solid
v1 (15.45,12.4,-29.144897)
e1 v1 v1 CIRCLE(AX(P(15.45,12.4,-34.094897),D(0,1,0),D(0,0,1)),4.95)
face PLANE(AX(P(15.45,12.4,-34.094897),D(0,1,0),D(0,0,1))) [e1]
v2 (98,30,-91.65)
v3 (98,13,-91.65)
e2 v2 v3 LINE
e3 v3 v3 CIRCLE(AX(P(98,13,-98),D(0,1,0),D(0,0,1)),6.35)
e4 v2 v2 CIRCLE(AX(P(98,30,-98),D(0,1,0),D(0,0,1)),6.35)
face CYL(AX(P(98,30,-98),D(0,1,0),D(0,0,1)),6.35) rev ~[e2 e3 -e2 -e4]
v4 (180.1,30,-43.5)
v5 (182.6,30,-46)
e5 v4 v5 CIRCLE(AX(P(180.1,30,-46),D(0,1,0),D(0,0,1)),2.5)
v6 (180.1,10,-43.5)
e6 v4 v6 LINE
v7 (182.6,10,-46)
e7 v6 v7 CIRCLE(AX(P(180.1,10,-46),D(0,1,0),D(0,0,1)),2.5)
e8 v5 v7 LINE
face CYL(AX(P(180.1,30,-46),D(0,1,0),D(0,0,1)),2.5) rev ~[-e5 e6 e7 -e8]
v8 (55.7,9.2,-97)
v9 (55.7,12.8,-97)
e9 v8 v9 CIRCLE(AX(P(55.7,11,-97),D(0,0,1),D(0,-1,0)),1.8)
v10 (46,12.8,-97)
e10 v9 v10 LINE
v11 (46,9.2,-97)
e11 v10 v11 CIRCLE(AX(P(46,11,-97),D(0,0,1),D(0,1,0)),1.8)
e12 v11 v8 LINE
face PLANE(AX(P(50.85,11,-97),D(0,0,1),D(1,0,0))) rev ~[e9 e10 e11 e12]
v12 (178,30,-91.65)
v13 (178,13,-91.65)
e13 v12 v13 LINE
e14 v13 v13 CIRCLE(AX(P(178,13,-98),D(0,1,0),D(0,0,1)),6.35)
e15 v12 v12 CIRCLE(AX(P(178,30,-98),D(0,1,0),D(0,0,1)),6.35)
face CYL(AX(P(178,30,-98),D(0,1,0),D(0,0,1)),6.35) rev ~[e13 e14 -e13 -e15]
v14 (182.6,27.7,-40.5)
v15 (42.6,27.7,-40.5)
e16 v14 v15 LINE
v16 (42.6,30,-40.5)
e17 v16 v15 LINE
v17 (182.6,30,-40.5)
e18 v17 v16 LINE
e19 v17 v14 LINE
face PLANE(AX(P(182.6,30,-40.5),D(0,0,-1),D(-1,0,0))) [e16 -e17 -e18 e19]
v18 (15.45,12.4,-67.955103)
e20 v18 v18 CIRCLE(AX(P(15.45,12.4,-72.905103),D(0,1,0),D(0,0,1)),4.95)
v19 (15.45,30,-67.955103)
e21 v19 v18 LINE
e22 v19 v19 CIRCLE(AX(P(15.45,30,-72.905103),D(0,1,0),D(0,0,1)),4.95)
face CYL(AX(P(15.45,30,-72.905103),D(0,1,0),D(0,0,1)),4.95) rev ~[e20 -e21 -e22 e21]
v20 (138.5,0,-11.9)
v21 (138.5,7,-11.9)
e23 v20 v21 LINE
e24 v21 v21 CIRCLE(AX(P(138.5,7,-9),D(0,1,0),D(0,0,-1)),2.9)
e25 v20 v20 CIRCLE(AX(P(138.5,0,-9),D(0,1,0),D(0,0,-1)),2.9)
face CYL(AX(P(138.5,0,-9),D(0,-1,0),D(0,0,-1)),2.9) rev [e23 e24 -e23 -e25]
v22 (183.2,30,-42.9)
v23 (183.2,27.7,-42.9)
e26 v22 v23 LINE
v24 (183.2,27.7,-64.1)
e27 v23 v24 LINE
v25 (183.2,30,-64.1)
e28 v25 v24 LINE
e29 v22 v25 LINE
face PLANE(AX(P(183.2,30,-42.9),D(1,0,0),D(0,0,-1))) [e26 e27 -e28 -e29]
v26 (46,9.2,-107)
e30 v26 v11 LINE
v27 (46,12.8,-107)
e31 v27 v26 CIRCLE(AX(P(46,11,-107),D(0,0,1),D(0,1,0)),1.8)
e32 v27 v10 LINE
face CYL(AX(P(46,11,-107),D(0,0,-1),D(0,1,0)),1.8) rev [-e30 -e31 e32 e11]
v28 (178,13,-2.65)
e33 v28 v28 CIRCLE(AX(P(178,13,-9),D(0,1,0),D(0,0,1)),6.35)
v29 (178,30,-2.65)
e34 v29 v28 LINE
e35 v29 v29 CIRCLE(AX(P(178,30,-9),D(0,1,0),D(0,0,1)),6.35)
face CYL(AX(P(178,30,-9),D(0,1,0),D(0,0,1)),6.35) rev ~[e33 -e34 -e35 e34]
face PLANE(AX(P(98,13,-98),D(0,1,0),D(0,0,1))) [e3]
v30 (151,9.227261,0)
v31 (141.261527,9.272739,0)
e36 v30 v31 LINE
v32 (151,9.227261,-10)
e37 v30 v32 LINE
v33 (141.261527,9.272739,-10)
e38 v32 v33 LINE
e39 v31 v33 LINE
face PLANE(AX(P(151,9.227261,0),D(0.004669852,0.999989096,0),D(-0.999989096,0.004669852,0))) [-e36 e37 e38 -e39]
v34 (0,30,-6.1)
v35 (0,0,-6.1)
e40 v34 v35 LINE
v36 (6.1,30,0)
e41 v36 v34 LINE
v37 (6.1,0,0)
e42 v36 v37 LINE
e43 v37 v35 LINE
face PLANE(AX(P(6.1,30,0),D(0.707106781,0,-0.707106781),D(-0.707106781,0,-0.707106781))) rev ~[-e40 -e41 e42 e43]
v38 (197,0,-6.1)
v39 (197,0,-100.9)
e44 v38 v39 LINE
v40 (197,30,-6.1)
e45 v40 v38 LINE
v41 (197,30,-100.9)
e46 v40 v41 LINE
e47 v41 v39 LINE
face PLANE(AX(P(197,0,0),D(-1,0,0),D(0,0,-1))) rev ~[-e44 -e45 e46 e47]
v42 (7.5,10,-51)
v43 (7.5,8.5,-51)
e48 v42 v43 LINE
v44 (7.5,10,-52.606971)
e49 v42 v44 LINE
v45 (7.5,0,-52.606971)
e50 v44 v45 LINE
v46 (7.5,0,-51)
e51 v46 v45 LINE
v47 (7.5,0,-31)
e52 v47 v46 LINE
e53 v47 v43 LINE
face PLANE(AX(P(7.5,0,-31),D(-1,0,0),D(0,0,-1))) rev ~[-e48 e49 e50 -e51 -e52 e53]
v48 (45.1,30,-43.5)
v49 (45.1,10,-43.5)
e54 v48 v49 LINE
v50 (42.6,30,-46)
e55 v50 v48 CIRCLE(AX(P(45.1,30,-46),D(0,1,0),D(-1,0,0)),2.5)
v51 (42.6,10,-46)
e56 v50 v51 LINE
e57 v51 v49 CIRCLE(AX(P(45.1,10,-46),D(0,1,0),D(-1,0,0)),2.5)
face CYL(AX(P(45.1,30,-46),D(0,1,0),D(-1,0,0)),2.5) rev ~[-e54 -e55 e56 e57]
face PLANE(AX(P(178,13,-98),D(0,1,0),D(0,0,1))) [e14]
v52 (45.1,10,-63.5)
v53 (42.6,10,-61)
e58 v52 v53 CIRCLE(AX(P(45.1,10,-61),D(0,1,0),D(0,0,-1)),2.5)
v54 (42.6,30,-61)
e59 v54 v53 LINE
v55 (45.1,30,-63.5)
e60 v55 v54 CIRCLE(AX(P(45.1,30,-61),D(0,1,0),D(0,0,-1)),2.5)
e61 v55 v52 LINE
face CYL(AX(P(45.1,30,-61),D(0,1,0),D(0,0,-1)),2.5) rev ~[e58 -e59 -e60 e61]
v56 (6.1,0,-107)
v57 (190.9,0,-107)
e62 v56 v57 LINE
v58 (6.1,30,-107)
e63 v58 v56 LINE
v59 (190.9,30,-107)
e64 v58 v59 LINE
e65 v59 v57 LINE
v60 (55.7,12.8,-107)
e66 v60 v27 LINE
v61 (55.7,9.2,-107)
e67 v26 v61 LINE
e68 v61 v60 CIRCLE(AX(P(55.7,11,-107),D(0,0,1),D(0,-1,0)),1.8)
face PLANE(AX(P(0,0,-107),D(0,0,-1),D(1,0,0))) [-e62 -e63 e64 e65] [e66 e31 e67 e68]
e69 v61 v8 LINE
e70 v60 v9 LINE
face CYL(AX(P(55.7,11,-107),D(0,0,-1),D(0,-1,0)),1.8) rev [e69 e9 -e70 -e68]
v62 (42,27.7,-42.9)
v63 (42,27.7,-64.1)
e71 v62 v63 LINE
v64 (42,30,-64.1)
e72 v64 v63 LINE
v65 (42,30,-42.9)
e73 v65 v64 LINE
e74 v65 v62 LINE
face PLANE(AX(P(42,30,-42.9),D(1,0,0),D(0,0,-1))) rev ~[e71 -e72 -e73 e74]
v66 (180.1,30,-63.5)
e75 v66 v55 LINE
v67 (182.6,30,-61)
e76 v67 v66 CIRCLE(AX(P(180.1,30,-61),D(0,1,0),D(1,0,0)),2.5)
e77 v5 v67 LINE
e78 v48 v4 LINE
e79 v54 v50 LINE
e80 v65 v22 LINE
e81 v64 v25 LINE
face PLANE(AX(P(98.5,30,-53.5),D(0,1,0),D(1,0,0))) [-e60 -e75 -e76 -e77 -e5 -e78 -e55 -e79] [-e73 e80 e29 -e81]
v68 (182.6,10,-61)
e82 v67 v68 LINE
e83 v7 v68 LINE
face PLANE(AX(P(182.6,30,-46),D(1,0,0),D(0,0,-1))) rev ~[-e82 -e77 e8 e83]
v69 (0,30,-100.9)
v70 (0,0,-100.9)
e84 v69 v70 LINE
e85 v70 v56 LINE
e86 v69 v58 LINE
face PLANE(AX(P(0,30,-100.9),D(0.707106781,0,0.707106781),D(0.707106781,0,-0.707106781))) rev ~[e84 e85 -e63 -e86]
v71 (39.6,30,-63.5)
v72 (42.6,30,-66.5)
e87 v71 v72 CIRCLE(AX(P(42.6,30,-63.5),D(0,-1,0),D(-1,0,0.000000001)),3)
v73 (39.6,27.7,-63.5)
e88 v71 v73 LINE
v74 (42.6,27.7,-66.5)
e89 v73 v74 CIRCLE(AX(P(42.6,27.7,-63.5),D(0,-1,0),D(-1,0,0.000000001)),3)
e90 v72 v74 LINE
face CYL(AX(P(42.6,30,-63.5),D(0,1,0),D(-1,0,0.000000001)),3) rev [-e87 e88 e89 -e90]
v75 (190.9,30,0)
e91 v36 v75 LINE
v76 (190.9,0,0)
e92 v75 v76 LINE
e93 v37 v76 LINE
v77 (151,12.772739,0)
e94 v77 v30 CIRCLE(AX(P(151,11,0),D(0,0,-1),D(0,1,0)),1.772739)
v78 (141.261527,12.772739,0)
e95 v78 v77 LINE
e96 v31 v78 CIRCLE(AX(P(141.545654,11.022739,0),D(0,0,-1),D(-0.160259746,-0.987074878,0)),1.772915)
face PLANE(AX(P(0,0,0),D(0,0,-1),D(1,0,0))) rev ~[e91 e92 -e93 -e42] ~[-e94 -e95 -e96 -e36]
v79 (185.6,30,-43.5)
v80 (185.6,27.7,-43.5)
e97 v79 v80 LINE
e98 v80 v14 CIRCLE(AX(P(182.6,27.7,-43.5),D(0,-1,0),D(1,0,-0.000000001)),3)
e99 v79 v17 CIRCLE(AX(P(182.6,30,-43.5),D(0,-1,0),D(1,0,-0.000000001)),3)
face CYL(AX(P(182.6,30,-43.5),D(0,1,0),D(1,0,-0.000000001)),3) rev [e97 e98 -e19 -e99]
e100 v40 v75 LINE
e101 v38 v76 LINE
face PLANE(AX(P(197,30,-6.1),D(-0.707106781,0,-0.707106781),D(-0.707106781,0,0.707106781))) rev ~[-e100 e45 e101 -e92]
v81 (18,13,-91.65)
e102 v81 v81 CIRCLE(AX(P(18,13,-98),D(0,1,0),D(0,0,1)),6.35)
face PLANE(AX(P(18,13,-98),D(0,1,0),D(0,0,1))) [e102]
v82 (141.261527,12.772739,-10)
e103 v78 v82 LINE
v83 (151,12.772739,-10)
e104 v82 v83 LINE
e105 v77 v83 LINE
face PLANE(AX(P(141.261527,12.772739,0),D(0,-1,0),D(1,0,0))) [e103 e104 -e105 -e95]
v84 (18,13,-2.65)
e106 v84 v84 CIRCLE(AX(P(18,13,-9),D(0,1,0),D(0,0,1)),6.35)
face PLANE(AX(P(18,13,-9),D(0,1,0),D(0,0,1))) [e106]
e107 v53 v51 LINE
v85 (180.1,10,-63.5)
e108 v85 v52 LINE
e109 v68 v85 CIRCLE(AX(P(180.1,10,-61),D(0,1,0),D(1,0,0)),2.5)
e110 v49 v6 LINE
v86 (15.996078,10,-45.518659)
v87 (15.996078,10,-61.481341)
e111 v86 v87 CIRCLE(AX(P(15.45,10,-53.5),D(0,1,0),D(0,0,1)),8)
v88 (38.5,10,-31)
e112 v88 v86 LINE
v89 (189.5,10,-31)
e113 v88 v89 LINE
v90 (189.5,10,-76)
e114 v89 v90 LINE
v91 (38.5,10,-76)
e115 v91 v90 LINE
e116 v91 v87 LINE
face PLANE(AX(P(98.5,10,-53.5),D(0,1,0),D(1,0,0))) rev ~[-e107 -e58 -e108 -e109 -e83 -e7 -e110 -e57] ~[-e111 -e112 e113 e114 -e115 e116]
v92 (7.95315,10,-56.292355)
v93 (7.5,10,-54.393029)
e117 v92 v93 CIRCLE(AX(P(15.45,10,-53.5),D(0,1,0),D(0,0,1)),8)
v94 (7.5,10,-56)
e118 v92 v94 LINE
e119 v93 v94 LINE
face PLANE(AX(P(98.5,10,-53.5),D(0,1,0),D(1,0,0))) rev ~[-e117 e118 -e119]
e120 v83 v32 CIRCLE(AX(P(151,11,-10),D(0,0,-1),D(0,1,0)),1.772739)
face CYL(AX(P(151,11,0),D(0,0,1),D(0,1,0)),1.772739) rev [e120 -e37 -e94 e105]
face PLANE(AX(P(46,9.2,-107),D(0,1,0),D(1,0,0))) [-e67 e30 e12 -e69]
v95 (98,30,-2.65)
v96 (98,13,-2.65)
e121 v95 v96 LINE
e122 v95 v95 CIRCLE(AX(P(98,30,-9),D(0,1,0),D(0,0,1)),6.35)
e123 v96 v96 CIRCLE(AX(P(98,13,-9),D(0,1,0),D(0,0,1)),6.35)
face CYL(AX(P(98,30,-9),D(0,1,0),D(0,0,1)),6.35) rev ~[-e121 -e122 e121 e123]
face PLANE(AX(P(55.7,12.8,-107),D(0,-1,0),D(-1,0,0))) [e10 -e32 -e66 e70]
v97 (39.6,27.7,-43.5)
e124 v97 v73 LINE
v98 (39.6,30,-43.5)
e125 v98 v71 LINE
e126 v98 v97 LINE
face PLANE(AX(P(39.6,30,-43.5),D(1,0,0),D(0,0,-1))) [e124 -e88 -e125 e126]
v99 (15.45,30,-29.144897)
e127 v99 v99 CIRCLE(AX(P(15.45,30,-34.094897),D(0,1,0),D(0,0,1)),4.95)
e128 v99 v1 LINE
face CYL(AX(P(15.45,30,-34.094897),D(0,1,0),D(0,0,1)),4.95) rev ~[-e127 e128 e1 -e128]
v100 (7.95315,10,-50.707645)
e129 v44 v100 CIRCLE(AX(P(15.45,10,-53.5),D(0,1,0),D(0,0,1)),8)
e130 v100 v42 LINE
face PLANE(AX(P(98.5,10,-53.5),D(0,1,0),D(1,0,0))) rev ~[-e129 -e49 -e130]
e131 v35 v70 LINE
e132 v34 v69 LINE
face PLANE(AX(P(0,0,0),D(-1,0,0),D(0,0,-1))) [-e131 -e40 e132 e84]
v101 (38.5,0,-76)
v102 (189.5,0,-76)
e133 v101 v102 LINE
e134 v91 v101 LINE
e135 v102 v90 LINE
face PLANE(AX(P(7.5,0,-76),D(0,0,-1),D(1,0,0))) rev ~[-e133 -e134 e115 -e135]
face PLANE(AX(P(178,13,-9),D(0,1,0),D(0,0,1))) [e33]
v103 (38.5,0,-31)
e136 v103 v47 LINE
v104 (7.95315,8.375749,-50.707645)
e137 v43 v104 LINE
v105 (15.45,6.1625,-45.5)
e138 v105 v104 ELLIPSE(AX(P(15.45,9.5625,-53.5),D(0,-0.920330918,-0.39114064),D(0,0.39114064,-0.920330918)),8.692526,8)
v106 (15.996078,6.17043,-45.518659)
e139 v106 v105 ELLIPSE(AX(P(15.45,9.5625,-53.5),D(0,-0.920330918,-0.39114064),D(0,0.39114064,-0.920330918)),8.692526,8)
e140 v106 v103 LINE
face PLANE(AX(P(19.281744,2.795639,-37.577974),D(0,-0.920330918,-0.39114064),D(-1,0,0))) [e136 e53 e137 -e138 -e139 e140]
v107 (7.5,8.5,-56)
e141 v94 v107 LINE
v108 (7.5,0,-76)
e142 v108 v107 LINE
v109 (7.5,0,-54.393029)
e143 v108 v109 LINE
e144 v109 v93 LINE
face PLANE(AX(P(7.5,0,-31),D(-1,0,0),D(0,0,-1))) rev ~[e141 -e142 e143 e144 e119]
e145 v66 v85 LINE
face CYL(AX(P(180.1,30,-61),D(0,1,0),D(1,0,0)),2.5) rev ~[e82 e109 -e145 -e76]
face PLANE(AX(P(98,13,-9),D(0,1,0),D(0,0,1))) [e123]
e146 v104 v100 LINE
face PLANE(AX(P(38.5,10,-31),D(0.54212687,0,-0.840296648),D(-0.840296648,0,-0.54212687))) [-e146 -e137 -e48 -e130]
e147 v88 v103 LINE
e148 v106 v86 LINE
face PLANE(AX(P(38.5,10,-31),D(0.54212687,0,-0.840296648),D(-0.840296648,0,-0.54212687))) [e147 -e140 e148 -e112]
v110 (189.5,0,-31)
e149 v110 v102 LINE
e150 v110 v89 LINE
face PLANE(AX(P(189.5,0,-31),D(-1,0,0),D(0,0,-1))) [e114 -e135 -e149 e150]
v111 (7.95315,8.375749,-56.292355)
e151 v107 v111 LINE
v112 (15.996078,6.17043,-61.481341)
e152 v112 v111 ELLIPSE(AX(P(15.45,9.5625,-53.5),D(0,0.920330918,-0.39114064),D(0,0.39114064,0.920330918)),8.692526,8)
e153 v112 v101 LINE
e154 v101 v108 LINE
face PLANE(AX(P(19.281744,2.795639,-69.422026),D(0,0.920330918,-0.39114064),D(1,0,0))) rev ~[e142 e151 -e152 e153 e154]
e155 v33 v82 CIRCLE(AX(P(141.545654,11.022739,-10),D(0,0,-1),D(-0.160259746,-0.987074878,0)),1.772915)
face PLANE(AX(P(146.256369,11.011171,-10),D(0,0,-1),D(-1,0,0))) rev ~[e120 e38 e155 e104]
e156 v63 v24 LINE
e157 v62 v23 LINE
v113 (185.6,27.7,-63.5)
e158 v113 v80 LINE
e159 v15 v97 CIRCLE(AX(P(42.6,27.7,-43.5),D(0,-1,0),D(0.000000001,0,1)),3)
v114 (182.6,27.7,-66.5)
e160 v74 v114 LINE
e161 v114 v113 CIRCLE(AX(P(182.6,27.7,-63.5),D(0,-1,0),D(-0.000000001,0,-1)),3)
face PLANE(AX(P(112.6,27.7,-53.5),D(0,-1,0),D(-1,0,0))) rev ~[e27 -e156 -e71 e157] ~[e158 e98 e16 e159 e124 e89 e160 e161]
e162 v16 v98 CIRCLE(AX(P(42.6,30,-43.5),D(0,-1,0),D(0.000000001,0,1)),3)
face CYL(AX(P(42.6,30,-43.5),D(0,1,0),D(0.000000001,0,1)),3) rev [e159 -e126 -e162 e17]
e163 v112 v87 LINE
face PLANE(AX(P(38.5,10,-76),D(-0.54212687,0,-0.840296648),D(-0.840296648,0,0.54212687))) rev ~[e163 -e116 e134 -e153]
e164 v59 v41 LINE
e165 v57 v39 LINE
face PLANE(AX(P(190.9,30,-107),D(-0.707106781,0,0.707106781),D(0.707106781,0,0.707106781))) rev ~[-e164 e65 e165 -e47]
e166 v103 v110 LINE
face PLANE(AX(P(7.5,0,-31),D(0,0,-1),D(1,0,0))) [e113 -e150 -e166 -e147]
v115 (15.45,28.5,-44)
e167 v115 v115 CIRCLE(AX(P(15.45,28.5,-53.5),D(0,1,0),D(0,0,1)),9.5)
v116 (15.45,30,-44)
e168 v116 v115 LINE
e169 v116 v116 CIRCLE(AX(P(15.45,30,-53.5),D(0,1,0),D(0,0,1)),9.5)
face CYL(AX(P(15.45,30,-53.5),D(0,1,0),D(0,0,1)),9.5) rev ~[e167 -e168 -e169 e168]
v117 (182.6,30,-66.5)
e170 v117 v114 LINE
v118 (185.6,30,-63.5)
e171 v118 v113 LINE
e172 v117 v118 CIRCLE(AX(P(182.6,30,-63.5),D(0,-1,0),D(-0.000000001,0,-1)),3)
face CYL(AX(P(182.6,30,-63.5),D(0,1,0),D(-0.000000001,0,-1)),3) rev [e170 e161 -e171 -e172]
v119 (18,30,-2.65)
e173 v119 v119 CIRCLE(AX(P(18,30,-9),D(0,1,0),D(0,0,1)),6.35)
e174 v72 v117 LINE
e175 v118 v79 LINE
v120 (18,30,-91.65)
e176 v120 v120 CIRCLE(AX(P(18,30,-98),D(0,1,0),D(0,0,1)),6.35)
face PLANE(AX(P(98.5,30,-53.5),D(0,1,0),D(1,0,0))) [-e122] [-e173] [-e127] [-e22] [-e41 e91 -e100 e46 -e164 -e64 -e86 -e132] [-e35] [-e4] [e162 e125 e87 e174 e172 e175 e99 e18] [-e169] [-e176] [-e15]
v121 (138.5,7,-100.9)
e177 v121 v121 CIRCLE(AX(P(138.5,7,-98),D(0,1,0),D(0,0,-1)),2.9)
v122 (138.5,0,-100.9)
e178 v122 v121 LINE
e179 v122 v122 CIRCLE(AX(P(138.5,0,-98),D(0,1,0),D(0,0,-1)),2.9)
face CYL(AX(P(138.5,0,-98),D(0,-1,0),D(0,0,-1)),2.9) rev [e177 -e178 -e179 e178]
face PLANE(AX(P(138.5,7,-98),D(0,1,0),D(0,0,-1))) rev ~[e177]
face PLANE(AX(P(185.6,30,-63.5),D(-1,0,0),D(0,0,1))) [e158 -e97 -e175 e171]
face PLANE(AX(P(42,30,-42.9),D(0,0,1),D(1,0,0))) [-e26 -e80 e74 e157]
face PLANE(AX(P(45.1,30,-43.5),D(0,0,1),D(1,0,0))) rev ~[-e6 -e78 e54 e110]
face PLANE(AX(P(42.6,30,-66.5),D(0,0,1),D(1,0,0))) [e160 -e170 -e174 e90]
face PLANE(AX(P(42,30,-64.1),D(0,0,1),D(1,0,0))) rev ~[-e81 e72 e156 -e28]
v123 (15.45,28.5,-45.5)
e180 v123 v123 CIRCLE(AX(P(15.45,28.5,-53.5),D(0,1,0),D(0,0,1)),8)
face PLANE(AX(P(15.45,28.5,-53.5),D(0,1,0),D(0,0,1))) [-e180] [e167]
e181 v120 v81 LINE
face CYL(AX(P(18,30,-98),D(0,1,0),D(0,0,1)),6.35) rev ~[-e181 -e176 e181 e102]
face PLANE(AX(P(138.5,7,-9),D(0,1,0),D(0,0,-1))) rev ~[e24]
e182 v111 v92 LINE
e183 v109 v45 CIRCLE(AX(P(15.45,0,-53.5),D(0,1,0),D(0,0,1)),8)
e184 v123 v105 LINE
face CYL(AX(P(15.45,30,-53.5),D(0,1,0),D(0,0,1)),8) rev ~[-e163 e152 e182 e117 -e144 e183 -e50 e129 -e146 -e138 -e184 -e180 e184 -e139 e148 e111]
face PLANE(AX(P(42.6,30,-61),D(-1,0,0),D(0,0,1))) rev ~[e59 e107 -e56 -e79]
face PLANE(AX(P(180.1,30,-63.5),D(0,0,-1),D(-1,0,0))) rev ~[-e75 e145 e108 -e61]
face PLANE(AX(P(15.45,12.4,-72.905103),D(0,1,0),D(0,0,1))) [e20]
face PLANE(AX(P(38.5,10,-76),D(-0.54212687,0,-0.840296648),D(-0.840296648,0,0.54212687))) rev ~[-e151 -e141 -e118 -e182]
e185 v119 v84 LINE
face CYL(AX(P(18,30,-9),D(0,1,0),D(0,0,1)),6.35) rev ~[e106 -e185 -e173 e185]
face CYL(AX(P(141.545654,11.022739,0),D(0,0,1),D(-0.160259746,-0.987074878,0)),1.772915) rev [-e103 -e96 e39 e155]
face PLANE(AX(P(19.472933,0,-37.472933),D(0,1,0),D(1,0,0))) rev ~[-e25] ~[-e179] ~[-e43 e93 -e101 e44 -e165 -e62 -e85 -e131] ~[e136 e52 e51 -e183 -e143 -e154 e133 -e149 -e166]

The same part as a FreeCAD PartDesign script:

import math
import FreeCAD as App
import Part
import Sketcher

V = App.Vector

doc = App.newDocument("Part")
body = doc.addObject("PartDesign::Body", "Body")

# Sketch on XZ plane
sketch1 = body.newObject("Sketcher::SketchObject", "Sketch")
sketch1.AttachmentSupport = (doc.getObject("XZ_Plane"), [""])
sketch1.MapMode = "FlatFace"
sketch1.addGeometry([
    Part.LineSegment(V(0, -107, 0), V(0, 0, 0)),
    Part.LineSegment(V(0, 0, 0), V(197, 0, 0)),
    Part.LineSegment(V(197, 0, 0), V(197, -107, 0)),
    Part.LineSegment(V(197, -107, 0), V(0, -107, 0)),
], False)
sketch1.addConstraint([
    Sketcher.Constraint("Coincident", 0, 2, 1, 1),
    Sketcher.Constraint("Coincident", 1, 2, 2, 1),
    Sketcher.Constraint("Coincident", 2, 2, 3, 1),
    Sketcher.Constraint("Coincident", 3, 2, 0, 1),
    Sketcher.Constraint("Vertical", 0),
    Sketcher.Constraint("Horizontal", 1),
    Sketcher.Constraint("Vertical", 2),
    Sketcher.Constraint("Horizontal", 3),
    Sketcher.Constraint("Coincident", 0, 2, -1, 1),
    Sketcher.Constraint("DistanceX", 1, 1, 1, 2, 197.0),
    Sketcher.Constraint("DistanceY", 0, 1, 0, 2, 107.0),
])
pad1 = body.newObject("PartDesign::Pad", "Pad")
pad1.Profile = sketch1
pad1.Length = 30
pad1.Reversed = True

# Sketch on XZ plane
sketch2 = body.newObject("Sketcher::SketchObject", "Sketch001")
sketch2.AttachmentSupport = (doc.getObject("XZ_Plane"), [""])
sketch2.MapMode = "FlatFace"
sketch2.addGeometry([
    Part.LineSegment(V(8, -76, 0), V(8, -31, 0)),
    Part.LineSegment(V(8, -31, 0), V(190, -31, 0)),
    Part.LineSegment(V(190, -31, 0), V(190, -76, 0)),
    Part.LineSegment(V(190, -76, 0), V(8, -76, 0)),
], False)
sketch2.addConstraint([
    Sketcher.Constraint("Coincident", 0, 2, 1, 1),
    Sketcher.Constraint("Coincident", 1, 2, 2, 1),
    Sketcher.Constraint("Coincident", 2, 2, 3, 1),
    Sketcher.Constraint("Coincident", 3, 2, 0, 1),
    Sketcher.Constraint("Vertical", 0),
    Sketcher.Constraint("Horizontal", 1),
    Sketcher.Constraint("Vertical", 2),
    Sketcher.Constraint("Horizontal", 3),
    Sketcher.Constraint("DistanceX", 1, 1, 1, 2, 182.0),
    Sketcher.Constraint("DistanceY", 0, 1, 0, 2, 45.0),
    Sketcher.Constraint("DistanceY", 0, 2, -1, 1, 31.0),
    Sketcher.Constraint("DistanceX", -1, 1, 0, 2, 7.5),
])
pocket1 = body.newObject("PartDesign::Pocket", "Pocket")
pocket1.Profile = sketch2
pocket1.Length = 10

# Sketch on XZ plane
sketch3 = body.newObject("Sketcher::SketchObject", "Sketch002")
sketch3.AttachmentSupport = (doc.getObject("XZ_Plane"), [""])
sketch3.MapMode = "FlatFace"
sketch3.AttachmentOffset = App.Placement(V(0, 0, -10), App.Rotation())
sketch3.addGeometry([
    Part.LineSegment(V(8, -31, 0), V(8, -51, 0)),  # 0
    Part.LineSegment(V(8, -51, 0), V(38, -31, 0)),  # 1
    Part.LineSegment(V(38, -31, 0), V(8, -31, 0)),  # 2
    Part.LineSegment(V(8, -56, 0), V(8, -76, 0)),  # 3
    Part.LineSegment(V(8, -76, 0), V(38, -76, 0)),  # 4
    Part.LineSegment(V(38, -76, 0), V(8, -56, 0)),  # 5
], False)
sketch3.addConstraint([
    Sketcher.Constraint("Coincident", 0, 2, 1, 1),
    Sketcher.Constraint("Coincident", 1, 2, 2, 1),
    Sketcher.Constraint("Coincident", 2, 2, 0, 1),
    Sketcher.Constraint("Coincident", 3, 2, 4, 1),
    Sketcher.Constraint("Coincident", 4, 2, 5, 1),
    Sketcher.Constraint("Coincident", 5, 2, 3, 1),
    Sketcher.Constraint("Vertical", 0),
    Sketcher.Constraint("Horizontal", 2),
    Sketcher.Constraint("Vertical", 3),
    Sketcher.Constraint("Horizontal", 4),
    Sketcher.Constraint("Vertical", 2, 2, 3, 2),
    Sketcher.Constraint("Vertical", 1, 2, 4, 2),
    Sketcher.Constraint("Equal", 0, 3),
    Sketcher.Constraint("DistanceX", 2, 2, 2, 1, 31.0),
    Sketcher.Constraint("DistanceY", 0, 2, 0, 1, 20.0),
    Sketcher.Constraint("DistanceY", 0, 2, -1, 1, 51.0),
    Sketcher.Constraint("DistanceY", 3, 2, -1, 1, 76.0),
    Sketcher.Constraint("DistanceX", -1, 1, 0, 2, 7.5),
])
pad2 = body.newObject("PartDesign::Pad", "Pad001")
pad2.Profile = sketch3
pad2.Length = 10

# Sketch on an angled plane
sketch4 = body.newObject("Sketcher::SketchObject", "Sketch003")
sketch4.Placement = App.Placement(V(0, 27.358391, -11.627316), App.Rotation(V(1, 0, 0), V(0, -0.39114064, -0.920330918), V(0, 0.920330918, -0.39114064), "ZXY"))
sketch4.addGeometry([
    Part.LineSegment(V(8, 48, 0), V(38, 70, 0)),
    Part.LineSegment(V(38, 70, 0), V(8, 70, 0)),
    Part.LineSegment(V(8, 70, 0), V(8, 48, 0)),
], False)
sketch4.addConstraint([
    Sketcher.Constraint("Coincident", 0, 2, 1, 1),
    Sketcher.Constraint("Coincident", 1, 2, 2, 1),
    Sketcher.Constraint("Coincident", 2, 2, 0, 1),
    Sketcher.Constraint("Horizontal", 1),
    Sketcher.Constraint("Vertical", 2),
    Sketcher.Constraint("DistanceX", 1, 2, 1, 1, 31.0),
    Sketcher.Constraint("DistanceX", -1, 1, 0, 2, 38.5),
    Sketcher.Constraint("Distance", 0, 37.858288),
    Sketcher.Constraint("DistanceY", -1, 1, 0, 2, 69.94515),
])
pocket2 = body.newObject("PartDesign::Pocket", "Pocket001")
pocket2.Profile = sketch4
pocket2.Length = 14.5

# Sketch on XZ plane
sketch5 = body.newObject("Sketcher::SketchObject", "Sketch004")
sketch5.AttachmentSupport = (doc.getObject("XZ_Plane"), [""])
sketch5.MapMode = "FlatFace"
sketch5.AttachmentOffset = App.Placement(V(0, 0, -30), App.Rotation())
sketch5.addGeometry(Part.Circle(V(15, -54, 0), V(0, 0, 1), 8), False)
sketch5.addConstraint([
    Sketcher.Constraint("Diameter", 0, 16.0),
    Sketcher.Constraint("DistanceY", 0, 3, -1, 1, 53.5),
    Sketcher.Constraint("DistanceX", -1, 1, 0, 3, 15.45),
])
pocket3 = body.newObject("PartDesign::Pocket", "Pocket002")
pocket3.Profile = sketch5
pocket3.Length = 171
pocket3.Reversed = True

# Sketch on XZ plane
sketch6 = body.newObject("Sketcher::SketchObject", "Sketch005")
sketch6.AttachmentSupport = (doc.getObject("XZ_Plane"), [""])
sketch6.MapMode = "FlatFace"
sketch6.AttachmentOffset = App.Placement(V(0, 0, -30), App.Rotation())
sketch6.addGeometry(Part.Circle(V(15, -54, 0), V(0, 0, 1), 10), False)
sketch6.addConstraint([
    Sketcher.Constraint("Diameter", 0, 19.0),
    Sketcher.Constraint("DistanceY", 0, 3, -1, 1, 53.5),
    Sketcher.Constraint("DistanceX", -1, 1, 0, 3, 15.45),
])
pocket4 = body.newObject("PartDesign::Pocket", "Pocket003")
pocket4.Profile = sketch6
pocket4.Length = 1.5
pocket4.Reversed = True

# Sketch on XZ plane
sketch7 = body.newObject("Sketcher::SketchObject", "Sketch006")
sketch7.AttachmentSupport = (doc.getObject("XZ_Plane"), [""])
sketch7.MapMode = "FlatFace"
sketch7.AttachmentOffset = App.Placement(V(0, 0, -30), App.Rotation())
sketch7.addGeometry([
    Part.Circle(V(15.4, -72.9, 0), V(0, 0, 1), 5),
    Part.Circle(V(15.4, -34.1, 0), V(0, 0, 1), 5),
], False)
sketch7.addConstraint([
    Sketcher.Constraint("Equal", 0, 1),
    Sketcher.Constraint("Vertical", 0, 3, 1, 3),
    Sketcher.Constraint("Diameter", 0, 9.9),
    Sketcher.Constraint("DistanceX", -1, 1, 0, 3, 15.45),
    Sketcher.Constraint("DistanceY", 0, 3, -1, 1, 72.905103),
    Sketcher.Constraint("DistanceY", 1, 3, -1, 1, 34.094897),
])
pocket5 = body.newObject("PartDesign::Pocket", "Pocket004")
pocket5.Profile = sketch7
pocket5.Length = 17.6
pocket5.Reversed = True

# Sketch on XZ plane
sketch8 = body.newObject("Sketcher::SketchObject", "Sketch007")
sketch8.AttachmentSupport = (doc.getObject("XZ_Plane"), [""])
sketch8.MapMode = "FlatFace"
sketch8.addGeometry([
    Part.Circle(V(138.5, -9, 0), V(0, 0, 1), 2.9),
    Part.Circle(V(138.5, -98, 0), V(0, 0, 1), 2.9),
], False)
sketch8.addConstraint([
    Sketcher.Constraint("Equal", 0, 1),
    Sketcher.Constraint("Vertical", 0, 3, 1, 3),
    Sketcher.Constraint("Diameter", 0, 5.8),
    Sketcher.Constraint("DistanceY", 0, 3, -1, 1, 9.0),
    Sketcher.Constraint("DistanceY", 1, 3, -1, 1, 98.0),
    Sketcher.Constraint("DistanceX", -1, 1, 0, 3, 138.5),
])
pocket6 = body.newObject("PartDesign::Pocket", "Pocket005")
pocket6.Profile = sketch8
pocket6.Length = 7

# Sketch on XY plane
sketch9 = body.newObject("Sketcher::SketchObject", "Sketch008")
sketch9.AttachmentSupport = (doc.getObject("XY_Plane"), [""])
sketch9.MapMode = "FlatFace"
sketch9.addGeometry([
    Part.LineSegment(V(151, 12.8, 0), V(141.3, 12.8, 0)),
    Part.ArcOfCircle(Part.Circle(V(141.5, 11, 0), V(0, 0, 1), 1.8), math.radians(99), math.radians(261)),
    Part.LineSegment(V(141.3, 9.3, 0), V(151, 9.2, 0)),
    Part.ArcOfCircle(Part.Circle(V(151, 11, 0), V(0, 0, 1), 1.8), math.radians(-90), math.radians(90)),
], False)
sketch9.addConstraint([
    Sketcher.Constraint("Coincident", 0, 2, 1, 1),
    Sketcher.Constraint("Coincident", 1, 2, 2, 1),
    Sketcher.Constraint("Coincident", 2, 2, 3, 1),
    Sketcher.Constraint("Tangent", 3, 2, 0, 1),
    Sketcher.Constraint("Horizontal", 0),
    Sketcher.Constraint("Vertical", 0, 2, 1, 2),
    Sketcher.Constraint("Vertical", 3, 3, 2, 2),
    Sketcher.Constraint("DistanceX", -1, 1, 3, 3, 151.0),
    Sketcher.Constraint("DistanceY", -1, 1, 3, 3, 11.0),
    Sketcher.Constraint("DistanceY", 1, 2, 0, 2, 3.5),
    Sketcher.Constraint("Radius", 3, 1.772739),
    Sketcher.Constraint("Radius", 1, 1.772915),
    Sketcher.Constraint("Distance", 2, 9.738579),
])
pocket7 = body.newObject("PartDesign::Pocket", "Pocket006")
pocket7.Profile = sketch9
pocket7.Length = 10

# Sketch on XY plane
sketch10 = body.newObject("Sketcher::SketchObject", "Sketch009")
sketch10.AttachmentSupport = (doc.getObject("XY_Plane"), [""])
sketch10.MapMode = "FlatFace"
sketch10.AttachmentOffset = App.Placement(V(0, 0, -107), App.Rotation())
sketch10.addGeometry([
    Part.LineSegment(V(46, 12.8, 0), V(55.7, 12.8, 0)),
    Part.ArcOfCircle(Part.Circle(V(55.7, 11, 0), V(0, 0, 1), 1.8), math.radians(-90), math.radians(90)),
    Part.LineSegment(V(55.7, 9.2, 0), V(46, 9.2, 0)),
    Part.ArcOfCircle(Part.Circle(V(46, 11, 0), V(0, 0, 1), 1.8), math.radians(90), math.radians(270)),
], False)
sketch10.addConstraint([
    Sketcher.Constraint("Tangent", 0, 2, 1, 2),
    Sketcher.Constraint("Tangent", 1, 1, 2, 1),
    Sketcher.Constraint("Tangent", 2, 2, 3, 2),
    Sketcher.Constraint("Tangent", 3, 1, 0, 1),
    Sketcher.Constraint("Horizontal", 0),
    Sketcher.Constraint("Horizontal", 2),
    Sketcher.Constraint("Radius", 1, 1.8),
    Sketcher.Constraint("DistanceX", 0, 1, 0, 2, 9.7),
    Sketcher.Constraint("DistanceY", -1, 1, 1, 3, 11.0),
    Sketcher.Constraint("DistanceX", -1, 1, 3, 3, 46.0),
])
pocket8 = body.newObject("PartDesign::Pocket", "Pocket007")
pocket8.Profile = sketch10
pocket8.Length = 10
pocket8.Reversed = True

# Sketch on an angled plane
sketch11 = body.newObject("Sketcher::SketchObject", "Sketch010")
sketch11.Placement = App.Placement(V(0, -11.159344, -4.742721), App.Rotation(V(1, 0, 0), V(0, 0.39114064, -0.920330918), V(0, 0.920330918, 0.39114064), "ZXY"))
sketch11.addGeometry([
    Part.LineSegment(V(38, 29, 0), V(8, 50, 0)),
    Part.LineSegment(V(8, 50, 0), V(8, 29, 0)),
    Part.LineSegment(V(8, 29, 0), V(38, 29, 0)),
], False)
sketch11.addConstraint([
    Sketcher.Constraint("Coincident", 0, 2, 1, 1),
    Sketcher.Constraint("Coincident", 1, 2, 2, 1),
    Sketcher.Constraint("Coincident", 2, 2, 0, 1),
    Sketcher.Constraint("Vertical", 1),
    Sketcher.Constraint("Horizontal", 2),
    Sketcher.Constraint("DistanceX", 2, 1, 2, 2, 31.0),
    Sketcher.Constraint("DistanceX", -1, 1, 0, 2, 7.5),
    Sketcher.Constraint("Distance", 0, 37.858288),
    Sketcher.Constraint("DistanceY", -1, 1, 1, 2, 28.530258),
])
pocket9 = body.newObject("PartDesign::Pocket", "Pocket008")
pocket9.Profile = sketch11
pocket9.Length = 14.5

# Sketch on XZ plane
sketch12 = body.newObject("Sketcher::SketchObject", "Sketch011")
sketch12.AttachmentSupport = (doc.getObject("XZ_Plane"), [""])
sketch12.MapMode = "FlatFace"
sketch12.AttachmentOffset = App.Placement(V(0, 0, -30), App.Rotation())
sketch12.addGeometry([
    Part.LineSegment(V(0, -101, 0), V(6, -107, 0)),  # 0
    Part.LineSegment(V(6, -107, 0), V(0, -107, 0)),  # 1
    Part.LineSegment(V(0, -107, 0), V(0, -101, 0)),  # 2
    Part.LineSegment(V(0, 0, 0), V(6, 0, 0)),  # 3
    Part.LineSegment(V(6, 0, 0), V(0, -6, 0)),  # 4
    Part.LineSegment(V(0, -6, 0), V(0, 0, 0)),  # 5
    Part.LineSegment(V(197, -6, 0), V(191, 0, 0)),  # 6
    Part.LineSegment(V(191, 0, 0), V(197, 0, 0)),  # 7
    Part.LineSegment(V(197, 0, 0), V(197, -6, 0)),  # 8
    Part.LineSegment(V(197, -107, 0), V(191, -107, 0)),  # 9
    Part.LineSegment(V(191, -107, 0), V(197, -101, 0)),  # 10
    Part.LineSegment(V(197, -101, 0), V(197, -107, 0)),  # 11
], False)
sketch12.addConstraint([
    Sketcher.Constraint("Coincident", 0, 2, 1, 1),
    Sketcher.Constraint("Coincident", 1, 2, 2, 1),
    Sketcher.Constraint("Coincident", 2, 2, 0, 1),
    Sketcher.Constraint("Coincident", 3, 2, 4, 1),
    Sketcher.Constraint("Coincident", 4, 2, 5, 1),
    Sketcher.Constraint("Coincident", 5, 2, 3, 1),
    Sketcher.Constraint("Coincident", 6, 2, 7, 1),
    Sketcher.Constraint("Coincident", 7, 2, 8, 1),
    Sketcher.Constraint("Coincident", 8, 2, 6, 1),
    Sketcher.Constraint("Coincident", 9, 2, 10, 1),
    Sketcher.Constraint("Coincident", 10, 2, 11, 1),
    Sketcher.Constraint("Coincident", 11, 2, 9, 1),
    Sketcher.Constraint("Horizontal", 1),
    Sketcher.Constraint("Vertical", 2),
    Sketcher.Constraint("Horizontal", 3),
    Sketcher.Constraint("Vertical", 5),
    Sketcher.Constraint("Horizontal", 7),
    Sketcher.Constraint("Vertical", 8),
    Sketcher.Constraint("Horizontal", 9),
    Sketcher.Constraint("Vertical", 11),
    Sketcher.Constraint("Coincident", 5, 2, -1, 1),
    Sketcher.Constraint("PointOnObject", 1, 2, -2),
    Sketcher.Constraint("PointOnObject", 6, 2, -1),
    Sketcher.Constraint("Perpendicular", 0, 4),
    Sketcher.Constraint("Perpendicular", 4, 6),
    Sketcher.Constraint("Perpendicular", 6, 10),
    Sketcher.Constraint("Horizontal", 4, 2, 8, 2),
    Sketcher.Constraint("Horizontal", 1, 2, 9, 2),
    Sketcher.Constraint("Horizontal", 2, 2, 10, 2),
    Sketcher.Constraint("Vertical", 0, 2, 3, 2),
    Sketcher.Constraint("Vertical", 6, 2, 9, 2),
    Sketcher.Constraint("Vertical", 8, 2, 10, 2),
    Sketcher.Constraint("DistanceX", 1, 2, 1, 1, 6.1),
    Sketcher.Constraint("DistanceY", 0, 2, -1, 1, 107.0),
    Sketcher.Constraint("DistanceX", -1, 1, 7, 2, 197.0),
])
pocket10 = body.newObject("PartDesign::Pocket", "Pocket009")
pocket10.Profile = sketch12
pocket10.Length = 55.4
pocket10.Reversed = True

# Sketch on XZ plane
sketch13 = body.newObject("Sketcher::SketchObject", "Sketch012")
sketch13.AttachmentSupport = (doc.getObject("XZ_Plane"), [""])
sketch13.MapMode = "FlatFace"
sketch13.AttachmentOffset = App.Placement(V(0, 0, -30), App.Rotation())
sketch13.addGeometry([
    Part.Circle(V(18, -9, 0), V(0, 0, 1), 6),  # 0
    Part.Circle(V(98, -9, 0), V(0, 0, 1), 6),  # 1
    Part.Circle(V(178, -9, 0), V(0, 0, 1), 6),  # 2
    Part.Circle(V(98, -98, 0), V(0, 0, 1), 6),  # 3
    Part.Circle(V(178, -98, 0), V(0, 0, 1), 6),  # 4
    Part.Circle(V(18, -98, 0), V(0, 0, 1), 6),  # 5
], False)
sketch13.addConstraint([
    Sketcher.Constraint("Equal", 0, 1),
    Sketcher.Constraint("Equal", 1, 2),
    Sketcher.Constraint("Equal", 2, 3),
    Sketcher.Constraint("Equal", 3, 4),
    Sketcher.Constraint("Equal", 4, 5),
    Sketcher.Constraint("Horizontal", 0, 3, 1, 3),
    Sketcher.Constraint("Horizontal", 1, 3, 2, 3),
    Sketcher.Constraint("Horizontal", 3, 3, 4, 3),
    Sketcher.Constraint("Horizontal", 4, 3, 5, 3),
    Sketcher.Constraint("Vertical", 1, 3, 3, 3),
    Sketcher.Constraint("Vertical", 2, 3, 4, 3),
    Sketcher.Constraint("Vertical", 0, 3, 5, 3),
    Sketcher.Constraint("Diameter", 0, 12.7),
    Sketcher.Constraint("DistanceX", -1, 1, 0, 3, 18.0),
    Sketcher.Constraint("DistanceY", 0, 3, -1, 1, 9.0),
    Sketcher.Constraint("DistanceX", -1, 1, 1, 3, 98.0),
    Sketcher.Constraint("DistanceX", -1, 1, 2, 3, 178.0),
    Sketcher.Constraint("DistanceY", 3, 3, -1, 1, 98.0),
])
pocket11 = body.newObject("PartDesign::Pocket", "Pocket010")
pocket11.Profile = sketch13
pocket11.Length = 17
pocket11.Reversed = True

# Sketch on XZ plane
sketch14 = body.newObject("Sketcher::SketchObject", "Sketch013")
sketch14.AttachmentSupport = (doc.getObject("XZ_Plane"), [""])
sketch14.MapMode = "FlatFace"
sketch14.AttachmentOffset = App.Placement(V(0, 0, -30), App.Rotation())
sketch14.addGeometry([
    Part.LineSegment(V(182.6, -66.5, 0), V(42.6, -66.5, 0)),  # 0
    Part.ArcOfCircle(Part.Circle(V(42.6, -63.5, 0), V(0, 0, 1), 3), math.radians(180), math.radians(270)),  # 1
    Part.LineSegment(V(39.6, -63.5, 0), V(39.6, -43.5, 0)),  # 2
    Part.ArcOfCircle(Part.Circle(V(42.6, -43.5, 0), V(0, 0, 1), 3), math.radians(90), math.radians(180)),  # 3
    Part.LineSegment(V(42.6, -40.5, 0), V(182.6, -40.5, 0)),  # 4
    Part.ArcOfCircle(Part.Circle(V(182.6, -43.5, 0), V(0, 0, 1), 3), math.radians(0), math.radians(90)),  # 5
    Part.LineSegment(V(185.6, -43.5, 0), V(185.6, -63.5, 0)),  # 6
    Part.ArcOfCircle(Part.Circle(V(182.6, -63.5, 0), V(0, 0, 1), 3), math.radians(-90), math.radians(0)),  # 7
    Part.LineSegment(V(42, -42.9, 0), V(42, -64.1, 0)),  # 8
    Part.LineSegment(V(42, -64.1, 0), V(183.2, -64.1, 0)),  # 9
    Part.LineSegment(V(183.2, -64.1, 0), V(183.2, -42.9, 0)),  # 10
    Part.LineSegment(V(183.2, -42.9, 0), V(42, -42.9, 0)),  # 11
], False)
sketch14.addConstraint([
    Sketcher.Constraint("Tangent", 0, 2, 1, 2),
    Sketcher.Constraint("Tangent", 1, 1, 2, 1),
    Sketcher.Constraint("Tangent", 2, 2, 3, 2),
    Sketcher.Constraint("Tangent", 3, 1, 4, 1),
    Sketcher.Constraint("Tangent", 4, 2, 5, 2),
    Sketcher.Constraint("Tangent", 5, 1, 6, 1),
    Sketcher.Constraint("Tangent", 6, 2, 7, 2),
    Sketcher.Constraint("Tangent", 7, 1, 0, 1),
    Sketcher.Constraint("Coincident", 8, 2, 9, 1),
    Sketcher.Constraint("Coincident", 9, 2, 10, 1),
    Sketcher.Constraint("Coincident", 10, 2, 11, 1),
    Sketcher.Constraint("Coincident", 11, 2, 8, 1),
    Sketcher.Constraint("Horizontal", 0),
    Sketcher.Constraint("Vertical", 2),
    Sketcher.Constraint("Horizontal", 4),
    Sketcher.Constraint("Vertical", 6),
    Sketcher.Constraint("Vertical", 8),
    Sketcher.Constraint("Horizontal", 9),
    Sketcher.Constraint("Vertical", 10),
    Sketcher.Constraint("Horizontal", 11),
    Sketcher.Constraint("Equal", 1, 3),
    Sketcher.Constraint("Equal", 3, 5),
    Sketcher.Constraint("Equal", 5, 7),
    Sketcher.Constraint("Radius", 1, 3.0),
    Sketcher.Constraint("DistanceX", 0, 2, 0, 1, 140.0),
    Sketcher.Constraint("DistanceY", 2, 1, 2, 2, 20.0),
    Sketcher.Constraint("DistanceX", 9, 1, 9, 2, 141.2),
    Sketcher.Constraint("DistanceY", 8, 2, 8, 1, 21.2),
    Sketcher.Constraint("DistanceX", -1, 1, 8, 2, 42.0),
    Sketcher.Constraint("DistanceX", -1, 1, 1, 3, 42.6),
    Sketcher.Constraint("DistanceY", 1, 3, -1, 1, 63.5),
    Sketcher.Constraint("DistanceY", 8, 2, -1, 1, 64.1),
])
pocket12 = body.newObject("PartDesign::Pocket", "Pocket011")
pocket12.Profile = sketch14
pocket12.Length = 2.3
pocket12.Reversed = True

# Sketch on XZ plane
sketch15 = body.newObject("Sketcher::SketchObject", "Sketch014")
sketch15.AttachmentSupport = (doc.getObject("XZ_Plane"), [""])
sketch15.MapMode = "FlatFace"
sketch15.AttachmentOffset = App.Placement(V(0, 0, -30), App.Rotation())
sketch15.addGeometry([
    Part.LineSegment(V(45.1, -43.5, 0), V(180.1, -43.5, 0)),  # 0
    Part.ArcOfCircle(Part.Circle(V(180.1, -46, 0), V(0, 0, 1), 2.5), math.radians(0), math.radians(90)),  # 1
    Part.LineSegment(V(182.6, -46, 0), V(182.6, -61, 0)),  # 2
    Part.ArcOfCircle(Part.Circle(V(180.1, -61, 0), V(0, 0, 1), 2.5), math.radians(-90), math.radians(0)),  # 3
    Part.LineSegment(V(180.1, -63.5, 0), V(45.1, -63.5, 0)),  # 4
    Part.ArcOfCircle(Part.Circle(V(45.1, -61, 0), V(0, 0, 1), 2.5), math.radians(180), math.radians(270)),  # 5
    Part.LineSegment(V(42.6, -61, 0), V(42.6, -46, 0)),  # 6
    Part.ArcOfCircle(Part.Circle(V(45.1, -46, 0), V(0, 0, 1), 2.5), math.radians(90), math.radians(180)),  # 7
], False)
sketch15.addConstraint([
    Sketcher.Constraint("Tangent", 0, 2, 1, 2),
    Sketcher.Constraint("Tangent", 1, 1, 2, 1),
    Sketcher.Constraint("Tangent", 2, 2, 3, 2),
    Sketcher.Constraint("Tangent", 3, 1, 4, 1),
    Sketcher.Constraint("Tangent", 4, 2, 5, 2),
    Sketcher.Constraint("Tangent", 5, 1, 6, 1),
    Sketcher.Constraint("Tangent", 6, 2, 7, 2),
    Sketcher.Constraint("Tangent", 7, 1, 0, 1),
    Sketcher.Constraint("Horizontal", 0),
    Sketcher.Constraint("Vertical", 2),
    Sketcher.Constraint("Horizontal", 4),
    Sketcher.Constraint("Vertical", 6),
    Sketcher.Constraint("Equal", 1, 3),
    Sketcher.Constraint("Equal", 3, 5),
    Sketcher.Constraint("Equal", 5, 7),
    Sketcher.Constraint("Radius", 1, 2.5),
    Sketcher.Constraint("DistanceX", 0, 1, 0, 2, 135.0),
    Sketcher.Constraint("DistanceY", 2, 2, 2, 1, 15.0),
    Sketcher.Constraint("DistanceY", 1, 3, -1, 1, 46.0),
    Sketcher.Constraint("DistanceX", -1, 1, 1, 3, 180.1),
])
pocket13 = body.newObject("PartDesign::Pocket", "Pocket012")
pocket13.Profile = sketch15
pocket13.Type = "ThroughAll"
pocket13.Reversed = True

doc.recompute()
